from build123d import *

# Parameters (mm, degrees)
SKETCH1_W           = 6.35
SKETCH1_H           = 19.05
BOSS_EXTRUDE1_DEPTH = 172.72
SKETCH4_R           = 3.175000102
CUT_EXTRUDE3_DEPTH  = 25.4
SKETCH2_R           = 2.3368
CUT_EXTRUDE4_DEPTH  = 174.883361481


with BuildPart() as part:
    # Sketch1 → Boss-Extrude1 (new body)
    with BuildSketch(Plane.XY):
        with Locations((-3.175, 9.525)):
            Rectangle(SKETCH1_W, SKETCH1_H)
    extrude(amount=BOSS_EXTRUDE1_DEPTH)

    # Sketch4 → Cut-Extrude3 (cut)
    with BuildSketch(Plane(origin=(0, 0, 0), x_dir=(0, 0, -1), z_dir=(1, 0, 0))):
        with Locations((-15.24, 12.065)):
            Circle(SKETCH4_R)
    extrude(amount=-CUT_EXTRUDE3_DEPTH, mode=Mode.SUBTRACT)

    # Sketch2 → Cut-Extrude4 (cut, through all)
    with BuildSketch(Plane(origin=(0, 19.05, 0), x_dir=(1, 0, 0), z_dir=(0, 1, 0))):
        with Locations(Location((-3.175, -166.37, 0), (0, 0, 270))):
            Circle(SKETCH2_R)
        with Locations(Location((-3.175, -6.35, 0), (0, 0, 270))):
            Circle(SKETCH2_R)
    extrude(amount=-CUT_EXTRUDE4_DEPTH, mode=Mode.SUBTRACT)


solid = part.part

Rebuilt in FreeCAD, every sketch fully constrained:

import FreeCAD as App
import Part
import Sketcher

V = App.Vector
Q = App.Units.Quantity


def add_polygon(sketch, points):
    """Adds a closed chain of lines whose ends are joined by coincident constraints."""
    first, n = sketch.GeometryCount, len(points)
    for a, b in zip(points, points[1:] + points[:1]):
        sketch.addGeometry(Part.LineSegment(App.Vector(*a, 0), App.Vector(*b, 0)), False)
    for i in range(n):
        sketch.addConstraint(Sketcher.Constraint("Coincident", first + i, 2, first + (i + 1) % n, 1))

doc = App.newDocument("Part")
params = doc.addObject("Spreadsheet::Sheet", "Params")
for row, (alias, value) in enumerate([
    ("sketch1_width", "0.25 in"),
    ("sketch1_height", "0.75 in"),
    ("pad1_length", "6.8 in"),
    ("sketch2_diameter", "0.25 in"),
    ("pocket1_length", "1 in"),
    ("sketch3_diameter", "0.184 in"),
], start=1):
    params.set(f"A{row}", alias)
    params.set(f"B{row}", "=" + value)
    params.setAlias(f"B{row}", alias)

body = doc.addObject("PartDesign::Body", "Body")

sketch1 = body.newObject("Sketcher::SketchObject", "Sketch")
sketch1.AttachmentSupport = (doc.getObject("XY_Plane"), [""])
sketch1.MapMode = "FlatFace"
add_polygon(sketch1, [(-6, 19), (-6, 0), (0, 0), (0, 19)])
sketch1.addConstraint([
    Sketcher.Constraint("Vertical", 0),
    Sketcher.Constraint("Horizontal", 1),
    Sketcher.Constraint("Vertical", 2),
    Sketcher.Constraint("Horizontal", 3),
    Sketcher.Constraint("Coincident", 1, 2, -1, 1),
    Sketcher.Constraint("DistanceX", 1, 1, 1, 2, Q("0.25 in")),
    Sketcher.Constraint("DistanceY", 0, 2, 0, 1, Q("0.75 in")),
])
sketch1.setExpression("Constraints[9]", "Params.sketch1_width")
sketch1.setExpression("Constraints[10]", "Params.sketch1_height")
pad1 = body.newObject("PartDesign::Pad", "Pad")
pad1.Profile = sketch1
pad1.setExpression("Length", "Params.pad1_length")

sketch2 = body.newObject("Sketcher::SketchObject", "Sketch001")
sketch2.AttachmentSupport = (doc.getObject("YZ_Plane"), [""])
sketch2.MapMode = "FlatFace"
sketch2.addGeometry(Part.Circle(V(12.1, 15.2, 0), V(0, 0, 1), 3.2), False)
sketch2.addConstraint([
    Sketcher.Constraint("Diameter", 0, Q("0.25 in")),
    Sketcher.Constraint("DistanceY", -1, 1, 0, 3, Q("0.6 in")),
    Sketcher.Constraint("DistanceX", -1, 1, 0, 3, Q("0.475 in")),
])
sketch2.setExpression("Constraints[0]", "Params.sketch2_diameter")
pocket1 = body.newObject("PartDesign::Pocket", "Pocket")
pocket1.Profile = sketch2
pocket1.setExpression("Length", "Params.pocket1_length")

sketch3 = body.newObject("Sketcher::SketchObject", "Sketch002")
sketch3.AttachmentSupport = (doc.getObject("XZ_Plane"), [""])
sketch3.MapMode = "FlatFace"
sketch3.AttachmentOffset = App.Placement(V(0, 0, -0.75 * 25.4), App.Rotation())
sketch3.addGeometry([
    Part.Circle(V(-3.2, 166.4, 0), V(0, 0, 1), 2.3),
    Part.Circle(V(-3.2, 6.3, 0), V(0, 0, 1), 2.3),
], False)
sketch3.addConstraint([
    Sketcher.Constraint("Equal", 0, 1),
    Sketcher.Constraint("Vertical", 0, 3, 1, 3),
    Sketcher.Constraint("Diameter", 0, Q("0.184 in")),
    Sketcher.Constraint("DistanceY", 1, 3, 0, 3, Q("6.3 in")),
    Sketcher.Constraint("DistanceY", -1, 1, 0, 3, Q("6.55 in")),
    Sketcher.Constraint("DistanceX", 0, 3, -1, 1, Q("0.125 in")),
])
sketch3.setExpression("Constraints[2]", "Params.sketch3_diameter")
pocket2 = body.newObject("PartDesign::Pocket", "Pocket001")
pocket2.Profile = sketch3
pocket2.Type = "ThroughAll"
pocket2.Reversed = True

doc.recompute()
